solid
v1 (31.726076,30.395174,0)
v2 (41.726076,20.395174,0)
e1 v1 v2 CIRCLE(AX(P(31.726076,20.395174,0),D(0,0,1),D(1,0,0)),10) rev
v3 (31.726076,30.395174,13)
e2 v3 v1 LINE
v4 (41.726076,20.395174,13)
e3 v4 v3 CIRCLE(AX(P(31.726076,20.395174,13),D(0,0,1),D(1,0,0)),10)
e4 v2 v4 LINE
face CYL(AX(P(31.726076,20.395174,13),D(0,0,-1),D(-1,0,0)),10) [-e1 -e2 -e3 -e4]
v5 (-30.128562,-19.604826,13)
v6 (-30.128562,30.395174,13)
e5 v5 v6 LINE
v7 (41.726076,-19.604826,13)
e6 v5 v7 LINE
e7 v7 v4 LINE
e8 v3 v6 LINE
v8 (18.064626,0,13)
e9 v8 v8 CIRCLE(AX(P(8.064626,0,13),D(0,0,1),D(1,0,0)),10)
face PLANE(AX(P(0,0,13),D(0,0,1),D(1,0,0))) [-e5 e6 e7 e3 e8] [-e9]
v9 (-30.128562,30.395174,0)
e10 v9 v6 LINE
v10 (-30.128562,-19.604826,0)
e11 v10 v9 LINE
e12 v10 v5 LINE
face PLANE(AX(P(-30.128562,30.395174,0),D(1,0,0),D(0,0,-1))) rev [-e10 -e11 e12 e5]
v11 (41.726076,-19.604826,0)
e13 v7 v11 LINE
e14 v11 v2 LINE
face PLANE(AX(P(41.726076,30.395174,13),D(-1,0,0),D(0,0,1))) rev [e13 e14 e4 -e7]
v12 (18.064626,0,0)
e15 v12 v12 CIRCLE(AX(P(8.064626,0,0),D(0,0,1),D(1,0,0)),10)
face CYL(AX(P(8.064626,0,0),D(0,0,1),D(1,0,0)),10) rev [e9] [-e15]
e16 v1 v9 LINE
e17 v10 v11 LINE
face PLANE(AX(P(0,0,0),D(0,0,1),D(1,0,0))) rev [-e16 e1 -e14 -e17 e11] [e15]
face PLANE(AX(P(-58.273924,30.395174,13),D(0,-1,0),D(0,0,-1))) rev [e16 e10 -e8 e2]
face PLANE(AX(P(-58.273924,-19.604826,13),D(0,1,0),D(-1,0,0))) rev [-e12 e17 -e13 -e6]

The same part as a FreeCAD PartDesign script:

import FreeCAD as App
import Part
import Sketcher
from FreeCAD import Vector


def edges_at(feature, points):
    """Names of the edges that pass closest to the given points."""
    edges = feature.Shape.Edges
    near = lambda p: min(range(len(edges)), key=lambda i: edges[i].distToShape(Part.Vertex(*p))[0])
    return sorted({f"Edge{near(p) + 1}" for p in points})

doc = App.newDocument("Part")
body = doc.addObject("PartDesign::Body", "Body")

# Sketch on XY plane
sketch1 = doc.addObject("Sketcher::SketchObject", "Sketch")
body.addObject(sketch1)
sketch1.AttachmentSupport = (doc.XY_Plane, [""])
sketch1.MapMode = "FlatFace"
sketch1.addGeometry([
    Part.LineSegment(Vector(-58, 30, 0), Vector(-58, -20, 0)),
    Part.LineSegment(Vector(-58, -20, 0), Vector(42, -20, 0)),
    Part.LineSegment(Vector(42, -20, 0), Vector(42, 30, 0)),
    Part.LineSegment(Vector(42, 30, 0), Vector(-58, 30, 0)),
], False)
sketch1.addConstraint([
    Sketcher.Constraint("Coincident", 0, 2, 1, 1),
    Sketcher.Constraint("Coincident", 1, 2, 2, 1),
    Sketcher.Constraint("Coincident", 2, 2, 3, 1),
    Sketcher.Constraint("Coincident", 3, 2, 0, 1),
    Sketcher.Constraint("Vertical", 0),
    Sketcher.Constraint("Horizontal", 1),
    Sketcher.Constraint("Vertical", 2),
    Sketcher.Constraint("Horizontal", 3),
    Sketcher.Constraint("DistanceX", 1, 1, 1, 2, 100.0),
    Sketcher.Constraint("DistanceY", 0, 2, 0, 1, 50.0),
    Sketcher.Constraint("DistanceX", 0, 2, -1, 1, 58.273924),
    Sketcher.Constraint("DistanceY", 0, 2, -1, 1, 19.604826),
])
pad1 = doc.addObject("PartDesign::Pad", "Pad")
body.addObject(pad1)
pad1.Profile = sketch1
pad1.Length = 13
doc.recompute()

fillet = doc.addObject("PartDesign::Fillet", "Fillet")
body.addObject(fillet)
fillet.Base = (pad1, edges_at(pad1, [(41.726, 30.395, 6.5)]))
fillet.Radius = 10

# Sketch on XY plane
sketch2 = doc.addObject("Sketcher::SketchObject", "Sketch001")
body.addObject(sketch2)
sketch2.AttachmentSupport = (doc.XY_Plane, [""])
sketch2.MapMode = "FlatFace"
sketch2.AttachmentOffset = App.Placement(Vector(0, 0, 13), App.Rotation())
sketch2.addGeometry(Part.Circle(Vector(8, 0, 0), Vector(0, 0, 1), 10), False)
sketch2.addConstraint([
    Sketcher.Constraint("PointOnObject", 0, 3, -1),
    Sketcher.Constraint("Diameter", 0, 20.0),
    Sketcher.Constraint("DistanceX", -1, 1, 0, 3, 8.064626),
])
pocket1 = doc.addObject("PartDesign::Pocket", "Pocket")
body.addObject(pocket1)
pocket1.Profile = sketch2
pocket1.Length = 13

# Sketch on XY plane
sketch3 = doc.addObject("Sketcher::SketchObject", "Sketch002")
body.addObject(sketch3)
sketch3.AttachmentSupport = (doc.XY_Plane, [""])
sketch3.MapMode = "FlatFace"
sketch3.AttachmentOffset = App.Placement(Vector(0, 0, 13), App.Rotation())
sketch3.addGeometry([
    Part.LineSegment(Vector(-58, 30, 0), Vector(-58, -20, 0)),
    Part.LineSegment(Vector(-58, -20, 0), Vector(-30, -20, 0)),
    Part.LineSegment(Vector(-30, -20, 0), Vector(-30, 30, 0)),
    Part.LineSegment(Vector(-30, 30, 0), Vector(-58, 30, 0)),
], False)
sketch3.addConstraint([
    Sketcher.Constraint("Coincident", 0, 2, 1, 1),
    Sketcher.Constraint("Coincident", 1, 2, 2, 1),
    Sketcher.Constraint("Coincident", 2, 2, 3, 1),
    Sketcher.Constraint("Coincident", 3, 2, 0, 1),
    Sketcher.Constraint("Vertical", 0),
    Sketcher.Constraint("Horizontal", 1),
    Sketcher.Constraint("Vertical", 2),
    Sketcher.Constraint("Horizontal", 3),
    Sketcher.Constraint("DistanceY", 0, 2, 0, 1, 50.0),
    Sketcher.Constraint("DistanceX", 1, 1, 1, 2, 28.145362),
    Sketcher.Constraint("DistanceX", 1, 2, -1, 1, 30.128562),
    Sketcher.Constraint("DistanceY", 0, 2, -1, 1, 19.604826),
])
pocket2 = doc.addObject("PartDesign::Pocket", "Pocket001")
body.addObject(pocket2)
pocket2.Profile = sketch3
pocket2.Length = 13

doc.recompute()
